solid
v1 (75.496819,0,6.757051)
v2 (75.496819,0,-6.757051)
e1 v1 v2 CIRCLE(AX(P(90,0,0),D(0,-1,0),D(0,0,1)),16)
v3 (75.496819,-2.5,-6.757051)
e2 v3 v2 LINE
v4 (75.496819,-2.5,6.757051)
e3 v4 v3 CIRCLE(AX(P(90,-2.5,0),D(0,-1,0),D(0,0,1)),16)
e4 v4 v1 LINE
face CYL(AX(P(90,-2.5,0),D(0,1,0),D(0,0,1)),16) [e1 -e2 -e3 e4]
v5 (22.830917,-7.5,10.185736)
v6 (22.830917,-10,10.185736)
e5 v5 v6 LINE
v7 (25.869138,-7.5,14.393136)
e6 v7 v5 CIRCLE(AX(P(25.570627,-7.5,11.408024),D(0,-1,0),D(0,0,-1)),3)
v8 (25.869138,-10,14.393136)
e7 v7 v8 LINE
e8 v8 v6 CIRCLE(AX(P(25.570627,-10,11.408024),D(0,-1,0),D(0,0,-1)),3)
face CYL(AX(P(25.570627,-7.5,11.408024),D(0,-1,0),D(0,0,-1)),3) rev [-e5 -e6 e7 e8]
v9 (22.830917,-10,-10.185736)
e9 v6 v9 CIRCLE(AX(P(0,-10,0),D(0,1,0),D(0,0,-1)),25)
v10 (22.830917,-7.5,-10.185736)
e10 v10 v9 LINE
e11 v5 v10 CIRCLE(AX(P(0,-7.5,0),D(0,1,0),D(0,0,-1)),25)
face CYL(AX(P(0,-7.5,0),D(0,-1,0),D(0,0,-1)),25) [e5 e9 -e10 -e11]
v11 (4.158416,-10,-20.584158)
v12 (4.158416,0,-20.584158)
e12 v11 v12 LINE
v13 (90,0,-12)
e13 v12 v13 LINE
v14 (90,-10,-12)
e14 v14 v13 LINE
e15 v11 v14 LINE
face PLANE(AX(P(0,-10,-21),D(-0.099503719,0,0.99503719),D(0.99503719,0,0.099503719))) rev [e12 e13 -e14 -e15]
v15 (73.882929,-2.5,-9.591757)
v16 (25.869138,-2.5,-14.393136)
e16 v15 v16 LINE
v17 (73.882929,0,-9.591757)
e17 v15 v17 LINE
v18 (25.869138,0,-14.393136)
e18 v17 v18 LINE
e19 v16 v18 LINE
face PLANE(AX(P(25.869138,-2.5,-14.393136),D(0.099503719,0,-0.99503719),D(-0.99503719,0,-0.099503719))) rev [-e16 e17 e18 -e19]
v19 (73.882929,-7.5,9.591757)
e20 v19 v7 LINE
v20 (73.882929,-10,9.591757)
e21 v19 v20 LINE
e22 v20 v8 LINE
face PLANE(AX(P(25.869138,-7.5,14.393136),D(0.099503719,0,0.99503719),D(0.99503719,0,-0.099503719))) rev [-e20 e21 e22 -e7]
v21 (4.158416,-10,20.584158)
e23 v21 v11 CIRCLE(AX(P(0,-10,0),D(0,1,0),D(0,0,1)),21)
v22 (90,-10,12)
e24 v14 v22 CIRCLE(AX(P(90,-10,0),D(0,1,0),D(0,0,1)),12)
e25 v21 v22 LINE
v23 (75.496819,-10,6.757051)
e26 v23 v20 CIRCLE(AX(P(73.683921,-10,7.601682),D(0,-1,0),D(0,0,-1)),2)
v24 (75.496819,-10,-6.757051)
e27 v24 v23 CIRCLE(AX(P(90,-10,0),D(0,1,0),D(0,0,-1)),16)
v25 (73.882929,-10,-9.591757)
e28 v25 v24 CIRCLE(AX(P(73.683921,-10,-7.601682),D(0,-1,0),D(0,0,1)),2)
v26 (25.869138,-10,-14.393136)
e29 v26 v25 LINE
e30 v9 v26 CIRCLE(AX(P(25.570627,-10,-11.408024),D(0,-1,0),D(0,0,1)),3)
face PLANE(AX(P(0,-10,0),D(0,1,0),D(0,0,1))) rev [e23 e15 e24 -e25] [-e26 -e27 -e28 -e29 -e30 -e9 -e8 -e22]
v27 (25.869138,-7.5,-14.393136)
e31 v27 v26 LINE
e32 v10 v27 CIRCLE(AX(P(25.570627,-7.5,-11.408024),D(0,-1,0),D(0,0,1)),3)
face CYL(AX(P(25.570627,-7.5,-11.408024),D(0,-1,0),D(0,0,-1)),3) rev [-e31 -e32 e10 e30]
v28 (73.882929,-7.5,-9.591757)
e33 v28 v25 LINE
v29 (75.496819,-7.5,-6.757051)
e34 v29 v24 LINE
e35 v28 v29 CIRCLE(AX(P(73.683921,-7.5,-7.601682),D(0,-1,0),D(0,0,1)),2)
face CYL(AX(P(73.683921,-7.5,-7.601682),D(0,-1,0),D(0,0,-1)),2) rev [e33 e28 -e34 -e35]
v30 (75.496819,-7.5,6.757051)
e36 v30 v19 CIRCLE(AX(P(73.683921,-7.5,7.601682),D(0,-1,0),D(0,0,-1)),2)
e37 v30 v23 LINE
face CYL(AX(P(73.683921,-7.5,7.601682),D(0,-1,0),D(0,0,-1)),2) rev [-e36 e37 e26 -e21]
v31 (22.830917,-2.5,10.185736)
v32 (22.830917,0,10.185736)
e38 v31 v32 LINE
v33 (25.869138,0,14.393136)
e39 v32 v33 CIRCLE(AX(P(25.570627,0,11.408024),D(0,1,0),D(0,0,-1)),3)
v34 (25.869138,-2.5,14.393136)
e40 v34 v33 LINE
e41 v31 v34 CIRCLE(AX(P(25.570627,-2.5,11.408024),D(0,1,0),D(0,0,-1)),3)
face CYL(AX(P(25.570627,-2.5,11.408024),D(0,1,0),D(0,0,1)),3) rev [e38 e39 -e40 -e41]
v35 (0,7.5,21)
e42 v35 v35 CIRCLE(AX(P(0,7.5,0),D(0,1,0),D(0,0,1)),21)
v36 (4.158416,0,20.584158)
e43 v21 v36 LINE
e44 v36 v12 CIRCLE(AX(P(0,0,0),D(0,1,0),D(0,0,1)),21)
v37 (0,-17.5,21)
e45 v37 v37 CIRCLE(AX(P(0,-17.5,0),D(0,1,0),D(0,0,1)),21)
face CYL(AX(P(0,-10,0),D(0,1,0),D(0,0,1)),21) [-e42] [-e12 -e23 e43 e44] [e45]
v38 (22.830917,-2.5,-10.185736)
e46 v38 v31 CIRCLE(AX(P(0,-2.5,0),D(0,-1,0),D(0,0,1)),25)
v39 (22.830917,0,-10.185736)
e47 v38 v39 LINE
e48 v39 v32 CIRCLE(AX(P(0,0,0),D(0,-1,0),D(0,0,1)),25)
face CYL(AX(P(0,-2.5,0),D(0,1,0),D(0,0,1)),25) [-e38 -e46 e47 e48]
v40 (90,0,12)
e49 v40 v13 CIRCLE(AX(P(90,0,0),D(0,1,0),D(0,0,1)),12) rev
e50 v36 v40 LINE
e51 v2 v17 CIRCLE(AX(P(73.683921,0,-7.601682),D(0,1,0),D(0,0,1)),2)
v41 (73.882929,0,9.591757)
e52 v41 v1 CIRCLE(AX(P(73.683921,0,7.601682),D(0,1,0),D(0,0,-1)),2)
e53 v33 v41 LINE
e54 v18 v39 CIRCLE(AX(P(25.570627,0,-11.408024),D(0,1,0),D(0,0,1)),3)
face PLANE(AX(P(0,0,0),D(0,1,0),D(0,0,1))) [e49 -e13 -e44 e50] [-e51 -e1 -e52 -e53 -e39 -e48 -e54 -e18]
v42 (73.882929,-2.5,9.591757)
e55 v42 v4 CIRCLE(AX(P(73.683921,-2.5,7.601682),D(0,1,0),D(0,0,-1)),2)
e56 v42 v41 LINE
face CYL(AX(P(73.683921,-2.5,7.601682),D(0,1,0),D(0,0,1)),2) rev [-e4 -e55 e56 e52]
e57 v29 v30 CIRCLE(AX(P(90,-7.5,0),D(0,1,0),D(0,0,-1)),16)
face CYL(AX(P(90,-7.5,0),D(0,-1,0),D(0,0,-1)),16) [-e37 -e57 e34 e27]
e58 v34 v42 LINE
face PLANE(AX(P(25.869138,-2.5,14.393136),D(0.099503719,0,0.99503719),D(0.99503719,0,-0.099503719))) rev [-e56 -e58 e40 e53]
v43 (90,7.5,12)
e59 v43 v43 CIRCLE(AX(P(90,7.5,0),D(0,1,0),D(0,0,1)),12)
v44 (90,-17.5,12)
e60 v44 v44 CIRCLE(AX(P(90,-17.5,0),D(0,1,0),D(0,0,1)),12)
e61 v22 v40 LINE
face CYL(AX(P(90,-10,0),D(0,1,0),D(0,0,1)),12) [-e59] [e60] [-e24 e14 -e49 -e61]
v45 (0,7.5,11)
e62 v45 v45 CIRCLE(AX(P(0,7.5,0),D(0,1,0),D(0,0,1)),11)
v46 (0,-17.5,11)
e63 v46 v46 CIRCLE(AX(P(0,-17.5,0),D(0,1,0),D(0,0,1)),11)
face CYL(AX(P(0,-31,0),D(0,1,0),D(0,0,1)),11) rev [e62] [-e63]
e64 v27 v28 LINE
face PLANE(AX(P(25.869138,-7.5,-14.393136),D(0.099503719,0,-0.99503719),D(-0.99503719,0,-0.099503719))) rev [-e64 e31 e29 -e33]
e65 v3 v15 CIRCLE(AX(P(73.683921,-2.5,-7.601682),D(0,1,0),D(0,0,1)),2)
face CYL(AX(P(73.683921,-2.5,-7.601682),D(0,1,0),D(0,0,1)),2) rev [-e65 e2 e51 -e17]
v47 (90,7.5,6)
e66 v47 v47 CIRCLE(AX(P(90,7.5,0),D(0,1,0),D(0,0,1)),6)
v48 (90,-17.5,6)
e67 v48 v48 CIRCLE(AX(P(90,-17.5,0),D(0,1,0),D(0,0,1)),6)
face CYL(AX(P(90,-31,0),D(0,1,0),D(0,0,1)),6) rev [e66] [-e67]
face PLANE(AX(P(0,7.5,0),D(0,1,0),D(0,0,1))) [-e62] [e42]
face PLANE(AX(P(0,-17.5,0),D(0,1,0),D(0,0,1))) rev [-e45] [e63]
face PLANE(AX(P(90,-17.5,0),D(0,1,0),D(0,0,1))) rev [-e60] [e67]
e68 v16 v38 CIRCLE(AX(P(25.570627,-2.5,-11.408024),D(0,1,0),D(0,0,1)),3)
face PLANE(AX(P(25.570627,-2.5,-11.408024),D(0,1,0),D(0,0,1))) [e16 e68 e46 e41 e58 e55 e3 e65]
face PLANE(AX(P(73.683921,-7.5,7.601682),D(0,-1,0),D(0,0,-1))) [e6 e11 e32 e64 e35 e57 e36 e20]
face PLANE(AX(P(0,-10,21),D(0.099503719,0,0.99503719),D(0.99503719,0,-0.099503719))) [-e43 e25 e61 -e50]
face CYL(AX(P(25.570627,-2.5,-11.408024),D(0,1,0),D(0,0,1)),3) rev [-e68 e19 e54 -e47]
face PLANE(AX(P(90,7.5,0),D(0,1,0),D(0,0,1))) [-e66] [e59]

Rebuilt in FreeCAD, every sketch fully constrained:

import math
import FreeCAD as App
import Part
import Sketcher

V = App.Vector

doc = App.newDocument("Part")
body = doc.addObject("PartDesign::Body", "Body")

# Sketch on XZ plane
sketch1 = doc.addObject("Sketcher::SketchObject", "Sketch")
body.addObject(sketch1)
sketch1.AttachmentSupport = (doc.XZ_Plane, [""])
sketch1.MapMode = "FlatFace"
sketch1.addGeometry(Part.LineSegment(V(90, -12, 0), V(0, -21, 0)), False)
sketch1.addGeometry(Part.ArcOfCircle(Part.Circle(V(0, 0, 0), V(0, 0, 1), 21), math.radians(90), math.radians(270)), False)
sketch1.addGeometry(Part.LineSegment(V(0, 21, 0), V(90, 12, 0)), False)
sketch1.addGeometry(Part.ArcOfCircle(Part.Circle(V(90, 0, 0), V(0, 0, 1), 12), math.radians(-90), math.radians(90)), False)
sketch1.addConstraint(Sketcher.Constraint("Coincident", 0, 2, 1, 2))
sketch1.addConstraint(Sketcher.Constraint("Coincident", 1, 1, 2, 1))
sketch1.addConstraint(Sketcher.Constraint("Coincident", 2, 2, 3, 2))
sketch1.addConstraint(Sketcher.Constraint("Coincident", 3, 1, 0, 1))
sketch1.addConstraint(Sketcher.Constraint("Coincident", 1, 3, -1, 1))
sketch1.addConstraint(Sketcher.Constraint("Symmetric", 2, 2, 3, 1, -1))
sketch1.addConstraint(Sketcher.Constraint("PointOnObject", 0, 2, -2))
sketch1.addConstraint(Sketcher.Constraint("PointOnObject", 1, 1, -2))
sketch1.addConstraint(Sketcher.Constraint("Vertical", 3, 3, 2, 2))
sketch1.addConstraint(Sketcher.Constraint("Radius", 1, 21.0))
sketch1.addConstraint(Sketcher.Constraint("Radius", 3, 12.0))
sketch1.addConstraint(Sketcher.Constraint("DistanceX", -1, 1, 3, 3, 90.0))
pad1 = doc.addObject("PartDesign::Pad", "Pad")
body.addObject(pad1)
pad1.Profile = sketch1
pad1.Length = 10

# Sketch on XZ plane
sketch2 = doc.addObject("Sketcher::SketchObject", "Sketch001")
body.addObject(sketch2)
sketch2.AttachmentSupport = (doc.XZ_Plane, [""])
sketch2.MapMode = "FlatFace"
sketch2.addGeometry(Part.Circle(V(0, 0, 0), V(0, 0, 1), 21), False)
sketch2.addGeometry(Part.Circle(V(90, 0, 0), V(0, 0, 1), 12), False)
sketch2.addConstraint(Sketcher.Constraint("Coincident", 0, 3, -1, 1))
sketch2.addConstraint(Sketcher.Constraint("PointOnObject", 1, 3, -1))
sketch2.addConstraint(Sketcher.Constraint("Diameter", 0, 42.0))
sketch2.addConstraint(Sketcher.Constraint("Diameter", 1, 24.0))
sketch2.addConstraint(Sketcher.Constraint("DistanceX", -1, 1, 1, 3, 90.0))
pad2 = doc.addObject("PartDesign::Pad", "Pad001")
body.addObject(pad2)
pad2.Profile = sketch2
pad2.Length = 17.5

# Sketch on XZ plane
sketch3 = doc.addObject("Sketcher::SketchObject", "Sketch002")
body.addObject(sketch3)
sketch3.AttachmentSupport = (doc.XZ_Plane, [""])
sketch3.MapMode = "FlatFace"
sketch3.AttachmentOffset = App.Placement(V(0, 0, -7.5), App.Rotation())
sketch3.addGeometry(Part.Circle(V(0, 0, 0), V(0, 0, 1), 21), False)
sketch3.addGeometry(Part.Circle(V(90, 0, 0), V(0, 0, 1), 12), False)
sketch3.addConstraint(Sketcher.Constraint("Coincident", 0, 3, -1, 1))
sketch3.addConstraint(Sketcher.Constraint("PointOnObject", 1, 3, -1))
sketch3.addConstraint(Sketcher.Constraint("Diameter", 0, 42.0))
sketch3.addConstraint(Sketcher.Constraint("Diameter", 1, 24.0))
sketch3.addConstraint(Sketcher.Constraint("DistanceX", -1, 1, 1, 3, 90.0))
pad3 = doc.addObject("PartDesign::Pad", "Pad002")
body.addObject(pad3)
pad3.Profile = sketch3
pad3.Length = 7.5

# Sketch on XZ plane
sketch4 = doc.addObject("Sketcher::SketchObject", "Sketch003")
body.addObject(sketch4)
sketch4.AttachmentSupport = (doc.XZ_Plane, [""])
sketch4.MapMode = "FlatFace"
sketch4.AttachmentOffset = App.Placement(V(0, 0, -7.5), App.Rotation())
sketch4.addGeometry(Part.Circle(V(0, 0, 0), V(0, 0, 1), 11), False)
sketch4.addGeometry(Part.Circle(V(90, 0, 0), V(0, 0, 1), 6), False)
sketch4.addConstraint(Sketcher.Constraint("Coincident", 0, 3, -1, 1))
sketch4.addConstraint(Sketcher.Constraint("PointOnObject", 1, 3, -1))
sketch4.addConstraint(Sketcher.Constraint("Diameter", 0, 22.0))
sketch4.addConstraint(Sketcher.Constraint("Diameter", 1, 12.0))
sketch4.addConstraint(Sketcher.Constraint("DistanceX", -1, 1, 1, 3, 90.0))
pocket1 = doc.addObject("PartDesign::Pocket", "Pocket")
body.addObject(pocket1)
pocket1.Profile = sketch4
pocket1.Length = 38.5
pocket1.Reversed = True

# Sketch on XZ plane
sketch5 = doc.addObject("Sketcher::SketchObject", "Sketch004")
body.addObject(sketch5)
sketch5.AttachmentSupport = (doc.XZ_Plane, [""])
sketch5.MapMode = "FlatFace"
sketch5.addGeometry(Part.LineSegment(V(73.9, -9.6, 0), V(25.9, -14.4, 0)), False)
sketch5.addGeometry(Part.ArcOfCircle(Part.Circle(V(25.6, -11.4, 0), V(0, 0, 1), 3), math.radians(156), math.radians(276)), False)
sketch5.addGeometry(Part.ArcOfCircle(Part.Circle(V(0, 0, 0), V(0, 0, 1), 25), math.radians(-24), math.radians(24)), False)
sketch5.addGeometry(Part.ArcOfCircle(Part.Circle(V(25.6, 11.4, 0), V(0, 0, 1), 3), math.radians(84), math.radians(204)), False)
sketch5.addGeometry(Part.LineSegment(V(25.9, 14.4, 0), V(73.9, 9.6, 0)), False)
sketch5.addGeometry(Part.ArcOfCircle(Part.Circle(V(73.7, 7.6, 0), V(0, 0, 1), 2), math.radians(-25), math.radians(84)), False)
sketch5.addGeometry(Part.ArcOfCircle(Part.Circle(V(90, 0, 0), V(0, 0, 1), 16), math.radians(155), math.radians(205)), False)
sketch5.addGeometry(Part.ArcOfCircle(Part.Circle(V(73.7, -7.6, 0), V(0, 0, 1), 2), math.radians(-84), math.radians(25)), False)
sketch5.addConstraint(Sketcher.Constraint("Tangent", 0, 2, 1, 2))
sketch5.addConstraint(Sketcher.Constraint("Tangent", 1, 1, 2, 1))
sketch5.addConstraint(Sketcher.Constraint("Tangent", 2, 2, 3, 2))
sketch5.addConstraint(Sketcher.Constraint("Tangent", 3, 1, 4, 1))
sketch5.addConstraint(Sketcher.Constraint("Tangent", 4, 2, 5, 2))
sketch5.addConstraint(Sketcher.Constraint("Tangent", 5, 1, 6, 1))
sketch5.addConstraint(Sketcher.Constraint("Tangent", 6, 2, 7, 2))
sketch5.addConstraint(Sketcher.Constraint("Tangent", 7, 1, 0, 1))
sketch5.addConstraint(Sketcher.Constraint("Coincident", 2, 3, -1, 1))
sketch5.addConstraint(Sketcher.Constraint("Equal", 1, 3))
sketch5.addConstraint(Sketcher.Constraint("Equal", 5, 7))
sketch5.addConstraint(Sketcher.Constraint("Symmetric", 5, 3, 7, 3, -1))
sketch5.addConstraint(Sketcher.Constraint("Vertical", 1, 3, 3, 3))
sketch5.addConstraint(Sketcher.Constraint("Radius", 1, 3.0))
sketch5.addConstraint(Sketcher.Constraint("Radius", 2, 25.0))
sketch5.addConstraint(Sketcher.Constraint("Radius", 5, 2.0))
sketch5.addConstraint(Sketcher.Constraint("Radius", 6, 16.0))
sketch5.addConstraint(Sketcher.Constraint("DistanceX", -1, 1, 6, 3, 90.0))
sketch5.addConstraint(Sketcher.Constraint("DistanceY", 0, 2, 1, 1, 4.2074))
sketch5.addConstraint(Sketcher.Constraint("DistanceX", 3, 3, 4, 2, 48.312301))
pocket2 = doc.addObject("PartDesign::Pocket", "Pocket001")
body.addObject(pocket2)
pocket2.Profile = sketch5
pocket2.Length = 2.5
pocket2.Reversed = True

# Sketch on XZ plane
sketch6 = doc.addObject("Sketcher::SketchObject", "Sketch005")
body.addObject(sketch6)
sketch6.AttachmentSupport = (doc.XZ_Plane, [""])
sketch6.MapMode = "FlatFace"
sketch6.AttachmentOffset = App.Placement(V(0, 0, 7.5), App.Rotation())
sketch6.addGeometry(Part.LineSegment(V(73.9, 9.6, 0), V(25.9, 14.4, 0)), False)
sketch6.addGeometry(Part.ArcOfCircle(Part.Circle(V(25.6, 11.4, 0), V(0, 0, 1), 3), math.radians(84), math.radians(204)), False)
sketch6.addGeometry(Part.ArcOfCircle(Part.Circle(V(0, 0, 0), V(0, 0, 1), 25), math.radians(-24), math.radians(24)), False)
sketch6.addGeometry(Part.ArcOfCircle(Part.Circle(V(25.6, -11.4, 0), V(0, 0, 1), 3), math.radians(156), math.radians(276)), False)
sketch6.addGeometry(Part.LineSegment(V(25.9, -14.4, 0), V(73.9, -9.6, 0)), False)
sketch6.addGeometry(Part.ArcOfCircle(Part.Circle(V(73.7, -7.6, 0), V(0, 0, 1), 2), math.radians(-84), math.radians(25)), False)
sketch6.addGeometry(Part.ArcOfCircle(Part.Circle(V(90, 0, 0), V(0, 0, 1), 16), math.radians(155), math.radians(205)), False)
sketch6.addGeometry(Part.ArcOfCircle(Part.Circle(V(73.7, 7.6, 0), V(0, 0, 1), 2), math.radians(-25), math.radians(84)), False)
sketch6.addConstraint(Sketcher.Constraint("Tangent", 0, 2, 1, 1))
sketch6.addConstraint(Sketcher.Constraint("Tangent", 1, 2, 2, 2))
sketch6.addConstraint(Sketcher.Constraint("Tangent", 2, 1, 3, 1))
sketch6.addConstraint(Sketcher.Constraint("Tangent", 3, 2, 4, 1))
sketch6.addConstraint(Sketcher.Constraint("Tangent", 4, 2, 5, 1))
sketch6.addConstraint(Sketcher.Constraint("Tangent", 5, 2, 6, 2))
sketch6.addConstraint(Sketcher.Constraint("Tangent", 6, 1, 7, 1))
sketch6.addConstraint(Sketcher.Constraint("Tangent", 7, 2, 0, 1))
sketch6.addConstraint(Sketcher.Constraint("Coincident", 2, 3, -1, 1))
sketch6.addConstraint(Sketcher.Constraint("Equal", 1, 3))
sketch6.addConstraint(Sketcher.Constraint("Equal", 5, 7))
sketch6.addConstraint(Sketcher.Constraint("Symmetric", 5, 3, 7, 3, -1))
sketch6.addConstraint(Sketcher.Constraint("Vertical", 1, 3, 3, 3))
sketch6.addConstraint(Sketcher.Constraint("Radius", 1, 3.0))
sketch6.addConstraint(Sketcher.Constraint("Radius", 2, 25.0))
sketch6.addConstraint(Sketcher.Constraint("Radius", 5, 2.0))
sketch6.addConstraint(Sketcher.Constraint("Radius", 6, 16.0))
sketch6.addConstraint(Sketcher.Constraint("DistanceX", -1, 1, 6, 3, 90.0))
sketch6.addConstraint(Sketcher.Constraint("DistanceY", 1, 2, 0, 2, 4.2074))
sketch6.addConstraint(Sketcher.Constraint("DistanceX", 3, 3, 4, 2, 48.312301))
pocket3 = doc.addObject("PartDesign::Pocket", "Pocket002")
body.addObject(pocket3)
pocket3.Profile = sketch6
pocket3.Length = 2.5
pocket3.Reversed = True

doc.recompute()
